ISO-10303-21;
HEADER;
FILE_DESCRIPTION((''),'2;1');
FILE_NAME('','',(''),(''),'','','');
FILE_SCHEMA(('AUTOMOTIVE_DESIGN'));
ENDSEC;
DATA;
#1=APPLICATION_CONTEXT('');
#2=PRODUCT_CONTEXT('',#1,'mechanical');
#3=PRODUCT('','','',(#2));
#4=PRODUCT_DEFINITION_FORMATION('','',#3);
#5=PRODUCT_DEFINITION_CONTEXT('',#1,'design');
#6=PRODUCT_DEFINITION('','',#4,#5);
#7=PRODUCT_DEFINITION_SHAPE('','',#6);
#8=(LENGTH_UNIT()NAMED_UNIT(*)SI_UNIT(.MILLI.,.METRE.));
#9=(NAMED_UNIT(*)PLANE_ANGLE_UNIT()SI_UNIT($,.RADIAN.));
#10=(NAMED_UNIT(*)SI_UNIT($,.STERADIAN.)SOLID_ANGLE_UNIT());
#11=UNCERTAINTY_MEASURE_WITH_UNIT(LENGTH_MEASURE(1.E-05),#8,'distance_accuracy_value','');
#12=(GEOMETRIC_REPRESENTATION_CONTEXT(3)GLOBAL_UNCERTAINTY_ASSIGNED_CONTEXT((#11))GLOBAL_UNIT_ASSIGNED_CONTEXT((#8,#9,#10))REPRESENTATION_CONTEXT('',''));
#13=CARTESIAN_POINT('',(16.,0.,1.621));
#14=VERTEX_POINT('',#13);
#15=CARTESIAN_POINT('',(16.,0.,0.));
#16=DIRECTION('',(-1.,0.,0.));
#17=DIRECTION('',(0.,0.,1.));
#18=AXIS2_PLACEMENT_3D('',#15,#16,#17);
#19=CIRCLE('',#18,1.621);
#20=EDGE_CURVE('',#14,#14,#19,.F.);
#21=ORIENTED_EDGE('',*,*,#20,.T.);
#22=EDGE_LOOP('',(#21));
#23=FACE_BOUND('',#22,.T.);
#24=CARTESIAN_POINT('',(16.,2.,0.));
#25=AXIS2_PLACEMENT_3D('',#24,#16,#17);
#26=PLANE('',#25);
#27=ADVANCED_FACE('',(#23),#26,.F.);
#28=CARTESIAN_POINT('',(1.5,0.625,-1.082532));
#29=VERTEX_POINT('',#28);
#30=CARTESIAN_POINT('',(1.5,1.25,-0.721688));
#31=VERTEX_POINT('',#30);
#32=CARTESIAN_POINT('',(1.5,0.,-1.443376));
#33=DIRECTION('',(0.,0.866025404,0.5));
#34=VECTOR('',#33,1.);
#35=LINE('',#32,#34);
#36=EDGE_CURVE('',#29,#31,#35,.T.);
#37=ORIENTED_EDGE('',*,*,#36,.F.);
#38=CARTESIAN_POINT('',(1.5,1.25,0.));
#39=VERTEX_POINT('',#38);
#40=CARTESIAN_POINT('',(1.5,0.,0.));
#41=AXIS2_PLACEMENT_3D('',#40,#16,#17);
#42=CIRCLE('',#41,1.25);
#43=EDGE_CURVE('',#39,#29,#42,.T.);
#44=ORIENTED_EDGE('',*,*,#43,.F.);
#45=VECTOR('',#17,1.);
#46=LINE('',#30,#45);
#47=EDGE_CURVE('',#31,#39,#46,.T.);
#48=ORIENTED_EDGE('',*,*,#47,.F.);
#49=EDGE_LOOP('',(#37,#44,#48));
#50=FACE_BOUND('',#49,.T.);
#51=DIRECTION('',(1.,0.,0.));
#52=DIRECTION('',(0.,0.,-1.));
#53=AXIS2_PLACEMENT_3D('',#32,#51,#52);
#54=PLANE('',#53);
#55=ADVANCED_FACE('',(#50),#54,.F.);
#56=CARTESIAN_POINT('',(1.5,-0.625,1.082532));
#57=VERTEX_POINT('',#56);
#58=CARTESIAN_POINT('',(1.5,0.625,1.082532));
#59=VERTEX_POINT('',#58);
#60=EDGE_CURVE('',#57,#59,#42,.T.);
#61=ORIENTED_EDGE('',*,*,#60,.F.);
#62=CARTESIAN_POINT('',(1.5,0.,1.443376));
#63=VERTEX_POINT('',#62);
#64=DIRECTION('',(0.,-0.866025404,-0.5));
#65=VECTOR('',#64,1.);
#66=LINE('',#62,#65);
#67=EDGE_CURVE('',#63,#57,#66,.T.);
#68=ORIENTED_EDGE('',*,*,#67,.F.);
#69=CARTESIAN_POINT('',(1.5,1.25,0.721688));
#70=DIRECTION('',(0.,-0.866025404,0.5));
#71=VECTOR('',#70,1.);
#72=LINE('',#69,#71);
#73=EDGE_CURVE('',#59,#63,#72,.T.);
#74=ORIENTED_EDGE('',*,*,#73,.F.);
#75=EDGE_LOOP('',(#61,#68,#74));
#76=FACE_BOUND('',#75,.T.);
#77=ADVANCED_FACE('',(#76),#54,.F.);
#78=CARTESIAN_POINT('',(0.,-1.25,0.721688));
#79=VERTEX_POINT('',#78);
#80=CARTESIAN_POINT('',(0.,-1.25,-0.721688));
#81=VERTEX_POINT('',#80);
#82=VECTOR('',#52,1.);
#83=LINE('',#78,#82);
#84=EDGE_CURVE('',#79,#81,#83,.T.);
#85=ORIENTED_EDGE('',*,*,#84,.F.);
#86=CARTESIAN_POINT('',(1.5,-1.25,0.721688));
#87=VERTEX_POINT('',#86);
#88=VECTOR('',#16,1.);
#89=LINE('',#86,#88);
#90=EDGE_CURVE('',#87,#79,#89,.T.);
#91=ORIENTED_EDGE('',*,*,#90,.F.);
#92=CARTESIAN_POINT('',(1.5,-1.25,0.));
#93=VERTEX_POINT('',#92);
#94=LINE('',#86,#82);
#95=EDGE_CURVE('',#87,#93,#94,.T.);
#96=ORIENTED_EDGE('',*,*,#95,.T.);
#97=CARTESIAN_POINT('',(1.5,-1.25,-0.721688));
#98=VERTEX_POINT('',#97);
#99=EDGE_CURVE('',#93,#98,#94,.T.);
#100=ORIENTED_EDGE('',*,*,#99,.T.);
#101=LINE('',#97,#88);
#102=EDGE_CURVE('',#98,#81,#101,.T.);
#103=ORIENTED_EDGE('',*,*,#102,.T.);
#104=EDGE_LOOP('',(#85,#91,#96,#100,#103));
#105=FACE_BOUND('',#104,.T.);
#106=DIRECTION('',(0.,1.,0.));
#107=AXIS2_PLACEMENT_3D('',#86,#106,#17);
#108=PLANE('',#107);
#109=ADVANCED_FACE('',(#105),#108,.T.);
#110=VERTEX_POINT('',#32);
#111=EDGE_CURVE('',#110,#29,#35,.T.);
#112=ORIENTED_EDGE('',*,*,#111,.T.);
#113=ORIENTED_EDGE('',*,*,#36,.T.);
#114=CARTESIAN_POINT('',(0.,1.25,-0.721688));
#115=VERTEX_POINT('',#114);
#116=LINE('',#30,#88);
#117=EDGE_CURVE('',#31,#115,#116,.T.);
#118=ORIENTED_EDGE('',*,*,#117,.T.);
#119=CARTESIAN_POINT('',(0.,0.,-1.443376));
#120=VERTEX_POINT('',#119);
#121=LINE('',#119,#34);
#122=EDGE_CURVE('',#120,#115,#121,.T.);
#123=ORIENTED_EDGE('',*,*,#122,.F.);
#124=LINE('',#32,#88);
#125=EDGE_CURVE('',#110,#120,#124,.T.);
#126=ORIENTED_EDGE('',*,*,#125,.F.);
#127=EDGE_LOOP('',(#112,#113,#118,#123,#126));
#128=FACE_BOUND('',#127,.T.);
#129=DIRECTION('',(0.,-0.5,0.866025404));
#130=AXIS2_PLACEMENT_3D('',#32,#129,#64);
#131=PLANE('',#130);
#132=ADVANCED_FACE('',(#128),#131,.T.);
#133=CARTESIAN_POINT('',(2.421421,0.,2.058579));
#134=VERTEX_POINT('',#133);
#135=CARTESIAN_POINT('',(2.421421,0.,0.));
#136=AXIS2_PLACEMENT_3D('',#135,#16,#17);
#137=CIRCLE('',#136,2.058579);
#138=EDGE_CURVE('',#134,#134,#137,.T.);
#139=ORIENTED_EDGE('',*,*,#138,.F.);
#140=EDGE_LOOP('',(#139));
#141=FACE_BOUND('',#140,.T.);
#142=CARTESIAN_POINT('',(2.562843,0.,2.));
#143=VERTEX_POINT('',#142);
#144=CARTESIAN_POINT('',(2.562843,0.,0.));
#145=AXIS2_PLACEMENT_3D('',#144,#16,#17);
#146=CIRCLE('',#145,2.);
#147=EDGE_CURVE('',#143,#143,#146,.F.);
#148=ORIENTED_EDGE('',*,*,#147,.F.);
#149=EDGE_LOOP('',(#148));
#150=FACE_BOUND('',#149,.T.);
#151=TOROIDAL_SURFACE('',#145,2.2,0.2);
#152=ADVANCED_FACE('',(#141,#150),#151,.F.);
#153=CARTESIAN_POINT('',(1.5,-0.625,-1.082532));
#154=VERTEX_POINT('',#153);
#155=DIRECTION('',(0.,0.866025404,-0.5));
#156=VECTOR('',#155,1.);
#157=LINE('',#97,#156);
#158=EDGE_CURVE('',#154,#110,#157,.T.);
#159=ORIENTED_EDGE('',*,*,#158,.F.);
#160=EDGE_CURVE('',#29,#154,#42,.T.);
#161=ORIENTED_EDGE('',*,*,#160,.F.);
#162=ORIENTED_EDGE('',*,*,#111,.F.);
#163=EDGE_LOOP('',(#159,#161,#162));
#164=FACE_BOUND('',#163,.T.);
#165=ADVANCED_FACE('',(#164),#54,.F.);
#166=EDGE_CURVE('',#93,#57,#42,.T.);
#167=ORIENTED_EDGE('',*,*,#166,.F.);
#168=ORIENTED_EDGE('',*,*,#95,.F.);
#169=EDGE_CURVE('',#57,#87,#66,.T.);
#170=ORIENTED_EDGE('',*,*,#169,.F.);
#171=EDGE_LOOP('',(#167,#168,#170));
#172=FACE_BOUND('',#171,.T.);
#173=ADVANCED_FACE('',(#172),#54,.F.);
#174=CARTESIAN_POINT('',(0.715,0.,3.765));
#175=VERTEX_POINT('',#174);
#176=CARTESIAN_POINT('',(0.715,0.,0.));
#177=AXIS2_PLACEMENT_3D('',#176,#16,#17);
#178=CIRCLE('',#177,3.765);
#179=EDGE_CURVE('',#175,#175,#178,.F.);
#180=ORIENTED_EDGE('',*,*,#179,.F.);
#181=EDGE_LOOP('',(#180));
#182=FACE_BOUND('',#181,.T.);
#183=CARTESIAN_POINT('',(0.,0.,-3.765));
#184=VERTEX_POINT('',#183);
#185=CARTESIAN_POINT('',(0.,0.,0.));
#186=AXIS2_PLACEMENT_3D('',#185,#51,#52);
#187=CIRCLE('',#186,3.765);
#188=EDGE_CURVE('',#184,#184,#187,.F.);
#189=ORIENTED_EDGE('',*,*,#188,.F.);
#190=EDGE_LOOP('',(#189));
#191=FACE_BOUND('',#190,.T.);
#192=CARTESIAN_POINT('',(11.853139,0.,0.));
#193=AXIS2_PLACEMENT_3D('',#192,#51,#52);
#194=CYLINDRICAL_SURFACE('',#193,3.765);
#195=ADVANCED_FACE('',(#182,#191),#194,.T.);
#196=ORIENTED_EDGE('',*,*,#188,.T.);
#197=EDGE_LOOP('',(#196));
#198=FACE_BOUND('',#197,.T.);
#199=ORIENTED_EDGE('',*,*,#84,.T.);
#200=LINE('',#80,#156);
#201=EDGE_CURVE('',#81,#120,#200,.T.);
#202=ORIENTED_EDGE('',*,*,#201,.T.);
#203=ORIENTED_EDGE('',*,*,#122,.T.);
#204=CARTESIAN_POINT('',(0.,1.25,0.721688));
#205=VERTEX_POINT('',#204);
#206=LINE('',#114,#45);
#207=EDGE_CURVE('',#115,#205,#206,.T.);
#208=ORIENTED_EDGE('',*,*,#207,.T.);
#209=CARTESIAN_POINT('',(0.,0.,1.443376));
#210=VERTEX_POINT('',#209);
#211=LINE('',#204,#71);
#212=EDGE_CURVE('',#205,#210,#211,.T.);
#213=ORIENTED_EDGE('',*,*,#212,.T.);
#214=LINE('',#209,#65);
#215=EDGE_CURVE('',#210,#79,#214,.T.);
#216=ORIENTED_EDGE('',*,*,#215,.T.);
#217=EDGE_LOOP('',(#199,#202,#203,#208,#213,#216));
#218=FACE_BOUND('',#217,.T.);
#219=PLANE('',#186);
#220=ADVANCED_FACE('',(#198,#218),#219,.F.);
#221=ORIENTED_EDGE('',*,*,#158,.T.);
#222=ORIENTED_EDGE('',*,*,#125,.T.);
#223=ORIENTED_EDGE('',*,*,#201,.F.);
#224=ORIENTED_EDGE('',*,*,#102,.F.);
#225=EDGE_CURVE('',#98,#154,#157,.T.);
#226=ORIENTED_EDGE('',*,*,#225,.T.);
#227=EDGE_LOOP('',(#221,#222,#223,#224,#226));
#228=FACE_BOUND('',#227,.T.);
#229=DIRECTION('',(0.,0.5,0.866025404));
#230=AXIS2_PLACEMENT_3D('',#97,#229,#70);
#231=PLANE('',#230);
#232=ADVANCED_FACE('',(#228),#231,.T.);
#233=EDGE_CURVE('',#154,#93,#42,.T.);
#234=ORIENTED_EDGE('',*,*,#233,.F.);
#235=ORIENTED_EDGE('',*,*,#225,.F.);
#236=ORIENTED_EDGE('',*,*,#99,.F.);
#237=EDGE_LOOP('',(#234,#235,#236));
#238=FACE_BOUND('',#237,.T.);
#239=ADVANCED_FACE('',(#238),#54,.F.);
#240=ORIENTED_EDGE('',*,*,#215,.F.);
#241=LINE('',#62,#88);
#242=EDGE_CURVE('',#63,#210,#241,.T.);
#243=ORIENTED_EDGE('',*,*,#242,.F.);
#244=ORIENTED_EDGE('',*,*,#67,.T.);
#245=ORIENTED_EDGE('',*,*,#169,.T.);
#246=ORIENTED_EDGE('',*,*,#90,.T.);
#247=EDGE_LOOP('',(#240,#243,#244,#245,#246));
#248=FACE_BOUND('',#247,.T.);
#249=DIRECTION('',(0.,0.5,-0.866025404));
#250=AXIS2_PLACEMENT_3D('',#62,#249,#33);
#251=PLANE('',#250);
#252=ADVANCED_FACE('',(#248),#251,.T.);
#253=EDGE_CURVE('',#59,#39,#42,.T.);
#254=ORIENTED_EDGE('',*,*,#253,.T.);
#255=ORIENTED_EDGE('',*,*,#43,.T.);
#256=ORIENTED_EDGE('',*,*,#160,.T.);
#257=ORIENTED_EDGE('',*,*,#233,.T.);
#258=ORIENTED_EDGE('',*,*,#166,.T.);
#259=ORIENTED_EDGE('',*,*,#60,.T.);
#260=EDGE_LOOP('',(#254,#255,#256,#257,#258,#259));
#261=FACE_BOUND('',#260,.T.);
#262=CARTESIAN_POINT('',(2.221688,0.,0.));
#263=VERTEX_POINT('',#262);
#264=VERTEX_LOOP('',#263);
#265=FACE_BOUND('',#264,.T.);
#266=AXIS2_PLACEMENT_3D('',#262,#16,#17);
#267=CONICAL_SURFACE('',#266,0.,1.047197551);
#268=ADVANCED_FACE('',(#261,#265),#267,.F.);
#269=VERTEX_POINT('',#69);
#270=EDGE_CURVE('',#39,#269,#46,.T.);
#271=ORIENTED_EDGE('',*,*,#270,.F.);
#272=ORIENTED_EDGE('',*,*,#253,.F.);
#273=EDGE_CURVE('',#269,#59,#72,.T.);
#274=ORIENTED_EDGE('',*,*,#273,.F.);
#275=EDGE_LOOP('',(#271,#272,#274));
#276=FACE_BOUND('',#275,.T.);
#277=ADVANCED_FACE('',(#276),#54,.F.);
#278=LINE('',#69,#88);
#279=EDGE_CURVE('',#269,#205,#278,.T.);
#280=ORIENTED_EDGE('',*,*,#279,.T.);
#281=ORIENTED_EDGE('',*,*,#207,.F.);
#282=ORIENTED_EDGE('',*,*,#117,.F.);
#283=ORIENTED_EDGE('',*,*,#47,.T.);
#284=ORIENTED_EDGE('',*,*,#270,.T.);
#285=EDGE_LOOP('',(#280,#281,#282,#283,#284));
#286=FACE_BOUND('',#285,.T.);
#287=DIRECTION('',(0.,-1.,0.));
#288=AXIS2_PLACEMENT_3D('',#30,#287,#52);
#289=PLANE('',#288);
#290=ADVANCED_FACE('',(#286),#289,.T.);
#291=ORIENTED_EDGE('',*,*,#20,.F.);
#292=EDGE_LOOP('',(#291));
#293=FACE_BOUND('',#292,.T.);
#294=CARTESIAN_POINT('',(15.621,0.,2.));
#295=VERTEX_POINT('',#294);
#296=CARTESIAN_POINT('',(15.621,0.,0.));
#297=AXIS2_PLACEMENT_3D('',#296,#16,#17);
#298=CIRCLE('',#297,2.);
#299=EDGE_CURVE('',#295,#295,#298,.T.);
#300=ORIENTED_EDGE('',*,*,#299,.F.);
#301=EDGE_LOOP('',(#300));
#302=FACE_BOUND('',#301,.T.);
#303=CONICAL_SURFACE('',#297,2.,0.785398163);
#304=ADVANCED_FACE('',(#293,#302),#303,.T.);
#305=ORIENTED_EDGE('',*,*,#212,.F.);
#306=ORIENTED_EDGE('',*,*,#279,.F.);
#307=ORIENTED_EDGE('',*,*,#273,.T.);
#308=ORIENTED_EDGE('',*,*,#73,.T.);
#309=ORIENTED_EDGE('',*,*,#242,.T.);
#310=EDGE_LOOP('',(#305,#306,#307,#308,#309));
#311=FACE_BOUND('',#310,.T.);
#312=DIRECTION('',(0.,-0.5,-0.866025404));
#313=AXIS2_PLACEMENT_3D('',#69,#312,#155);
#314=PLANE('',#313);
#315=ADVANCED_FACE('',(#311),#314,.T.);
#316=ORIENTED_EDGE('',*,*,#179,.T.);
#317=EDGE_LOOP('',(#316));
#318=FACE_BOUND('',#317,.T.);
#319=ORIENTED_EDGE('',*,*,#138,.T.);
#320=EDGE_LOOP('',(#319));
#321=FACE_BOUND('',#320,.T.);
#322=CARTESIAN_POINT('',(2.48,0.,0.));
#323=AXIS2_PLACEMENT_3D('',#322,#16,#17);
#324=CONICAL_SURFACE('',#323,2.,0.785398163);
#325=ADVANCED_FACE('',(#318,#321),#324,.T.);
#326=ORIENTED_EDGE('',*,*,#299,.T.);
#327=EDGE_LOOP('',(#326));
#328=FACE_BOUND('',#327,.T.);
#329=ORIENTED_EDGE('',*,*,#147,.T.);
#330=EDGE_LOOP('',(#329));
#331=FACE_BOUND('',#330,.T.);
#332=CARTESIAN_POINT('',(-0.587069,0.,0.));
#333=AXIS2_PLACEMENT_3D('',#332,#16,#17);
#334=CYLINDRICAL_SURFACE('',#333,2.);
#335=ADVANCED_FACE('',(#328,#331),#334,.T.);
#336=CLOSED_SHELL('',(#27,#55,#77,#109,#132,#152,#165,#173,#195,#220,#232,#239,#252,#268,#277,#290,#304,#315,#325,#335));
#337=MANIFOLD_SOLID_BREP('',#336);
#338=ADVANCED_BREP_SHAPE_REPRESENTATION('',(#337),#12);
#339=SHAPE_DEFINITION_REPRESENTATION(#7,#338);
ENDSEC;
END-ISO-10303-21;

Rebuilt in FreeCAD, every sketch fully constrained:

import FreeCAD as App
import Part
import Sketcher

V = App.Vector
Q = App.Units.Quantity


def edges_at(feature, points):
    """Names of the edges that pass closest to the given points."""
    edges = feature.Shape.Edges
    near = lambda p: min(range(len(edges)), key=lambda i: edges[i].distToShape(Part.Vertex(*p))[0])
    return sorted({f"Edge{near(p) + 1}" for p in points})

doc = App.newDocument("Part")
body = doc.addObject("PartDesign::Body", "Body")

# Sketch on XY plane
sketch1 = body.newObject("Sketcher::SketchObject", "Sketch")
sketch1.AttachmentSupport = (doc.getObject("XY_Plane"), [""])
sketch1.MapMode = "FlatFace"
sketch1.addGeometry(Part.LineSegment(V(0, 4.5, 0), V(0, 0, 0)), False)
sketch1.addGeometry(Part.LineSegment(V(0, 0, 0), V(16, 0, 0)), False)
sketch1.addGeometry(Part.LineSegment(V(16, 0, 0), V(16, 2, 0)), False)
sketch1.addGeometry(Part.LineSegment(V(16, 2, 0), V(2.5, 2, 0)), False)
sketch1.addGeometry(Part.LineSegment(V(2.5, 2, 0), V(0, 4.5, 0)), False)
sketch1.addConstraint(Sketcher.Constraint("Coincident", 0, 2, 1, 1))
sketch1.addConstraint(Sketcher.Constraint("Coincident", 1, 2, 2, 1))
sketch1.addConstraint(Sketcher.Constraint("Coincident", 2, 2, 3, 1))
sketch1.addConstraint(Sketcher.Constraint("Coincident", 3, 2, 4, 1))
sketch1.addConstraint(Sketcher.Constraint("Coincident", 4, 2, 0, 1))
sketch1.addConstraint(Sketcher.Constraint("Vertical", 0))
sketch1.addConstraint(Sketcher.Constraint("Horizontal", 1))
sketch1.addConstraint(Sketcher.Constraint("Vertical", 2))
sketch1.addConstraint(Sketcher.Constraint("Horizontal", 3))
sketch1.addConstraint(Sketcher.Constraint("Coincident", 0, 2, -1, 1))
sketch1.addConstraint(Sketcher.Constraint("DistanceX", 1, 1, 1, 2, 16.0))
sketch1.addConstraint(Sketcher.Constraint("DistanceY", 2, 1, 2, 2, 2.0))
sketch1.addConstraint(Sketcher.Constraint("Angle", 4, Q("135 deg")))
sketch1.addConstraint(Sketcher.Constraint("DistanceX", 3, 2, 3, 1, 13.52))
revolution = body.newObject("PartDesign::Revolution", "Revolution")
revolution.Profile = sketch1
revolution.ReferenceAxis = (sketch1, ["H_Axis"])
revolution.Angle = 360

# Sketch on YZ plane
sketch2 = body.newObject("Sketcher::SketchObject", "Sketch001")
sketch2.AttachmentSupport = (doc.getObject("YZ_Plane"), [""])
sketch2.MapMode = "FlatFace"
sketch2.addGeometry(Part.LineSegment(V(0, -1.4, 0), V(1.2, -0.7, 0)), False)
sketch2.addGeometry(Part.LineSegment(V(1.2, -0.7, 0), V(1.2, 0.7, 0)), False)
sketch2.addGeometry(Part.LineSegment(V(1.2, 0.7, 0), V(0, 1.4, 0)), False)
sketch2.addGeometry(Part.LineSegment(V(0, 1.4, 0), V(-1.2, 0.7, 0)), False)
sketch2.addGeometry(Part.LineSegment(V(-1.2, 0.7, 0), V(-1.2, -0.7, 0)), False)
sketch2.addGeometry(Part.LineSegment(V(-1.2, -0.7, 0), V(0, -1.4, 0)), False)
sketch2.addConstraint(Sketcher.Constraint("Coincident", 0, 2, 1, 1))
sketch2.addConstraint(Sketcher.Constraint("Coincident", 1, 2, 2, 1))
sketch2.addConstraint(Sketcher.Constraint("Coincident", 2, 2, 3, 1))
sketch2.addConstraint(Sketcher.Constraint("Coincident", 3, 2, 4, 1))
sketch2.addConstraint(Sketcher.Constraint("Coincident", 4, 2, 5, 1))
sketch2.addConstraint(Sketcher.Constraint("Coincident", 5, 2, 0, 1))
sketch2.addConstraint(Sketcher.Constraint("Vertical", 1))
sketch2.addConstraint(Sketcher.Constraint("Vertical", 4))
sketch2.addConstraint(Sketcher.Constraint("Symmetric", 0, 2, 3, 2, -1, 1))
sketch2.addConstraint(Sketcher.Constraint("Symmetric", 2, 2, 5, 2, -1, 1))
sketch2.addConstraint(Sketcher.Constraint("PointOnObject", 2, 2, -2))
sketch2.addConstraint(Sketcher.Constraint("Parallel", 2, 5))
sketch2.addConstraint(Sketcher.Constraint("Horizontal", 1, 2, 3, 2))
sketch2.addConstraint(Sketcher.Constraint("Angle", 0, Q("30 deg")))
sketch2.addConstraint(Sketcher.Constraint("DistanceX", 3, 2, 1, 2, 2.5))
sketch2.addConstraint(Sketcher.Constraint("DistanceY", 1, 1, 1, 2, 1.443376))
pocket1 = body.newObject("PartDesign::Pocket", "Pocket")
pocket1.Profile = sketch2
pocket1.Length = 1.5
pocket1.Reversed = True

# Sketch on XY plane
sketch3 = body.newObject("Sketcher::SketchObject", "Sketch002")
sketch3.AttachmentSupport = (doc.getObject("XY_Plane"), [""])
sketch3.MapMode = "FlatFace"
sketch3.addGeometry(Part.LineSegment(V(2.2, 0, 0), V(1.5, 1.2, 0)), False)
sketch3.addGeometry(Part.LineSegment(V(1.5, 1.2, 0), V(1.5, 0, 0)), False)
sketch3.addGeometry(Part.LineSegment(V(1.5, 0, 0), V(2.2, 0, 0)), False)
sketch3.addConstraint(Sketcher.Constraint("Coincident", 0, 2, 1, 1))
sketch3.addConstraint(Sketcher.Constraint("Coincident", 1, 2, 2, 1))
sketch3.addConstraint(Sketcher.Constraint("Coincident", 2, 2, 0, 1))
sketch3.addConstraint(Sketcher.Constraint("Vertical", 1))
sketch3.addConstraint(Sketcher.Constraint("Horizontal", 2))
sketch3.addConstraint(Sketcher.Constraint("PointOnObject", 1, 2, -1))
sketch3.addConstraint(Sketcher.Constraint("Angle", 0, Q("120 deg")))
sketch3.addConstraint(Sketcher.Constraint("DistanceY", 1, 2, 1, 1, 1.25))
sketch3.addConstraint(Sketcher.Constraint("DistanceX", -1, 1, 0, 2, 1.5))
groove = body.newObject("PartDesign::Groove", "Groove")
groove.Profile = sketch3
groove.ReferenceAxis = (sketch3, ["H_Axis"])
groove.Angle = 360
doc.recompute()

fillet = body.newObject("PartDesign::Fillet", "Fillet")
fillet.Base = (groove, edges_at(groove, [(2.48, 0, -2)]))
fillet.Radius = 0.2
doc.recompute()

chamfer = body.newObject("PartDesign::Chamfer", "Chamfer")
chamfer.Base = (fillet, edges_at(fillet, [(16, 0, -2)]))
chamfer.Size = 0.379

# Sketch on XZ plane
sketch4 = body.newObject("Sketcher::SketchObject", "Sketch003")
sketch4.AttachmentSupport = (doc.getObject("XZ_Plane"), [""])
sketch4.MapMode = "FlatFace"
sketch4.addGeometry(Part.LineSegment(V(-2, -9, 0), V(-2, -4, 0)), False)
sketch4.addGeometry(Part.LineSegment(V(-2, -4, 0), V(3, -4, 0)), False)
sketch4.addGeometry(Part.LineSegment(V(3, -4, 0), V(3, -9, 0)), False)
sketch4.addGeometry(Part.LineSegment(V(3, -9, 0), V(-2, -9, 0)), False)
sketch4.addConstraint(Sketcher.Constraint("Coincident", 0, 2, 1, 1))
sketch4.addConstraint(Sketcher.Constraint("Coincident", 1, 2, 2, 1))
sketch4.addConstraint(Sketcher.Constraint("Coincident", 2, 2, 3, 1))
sketch4.addConstraint(Sketcher.Constraint("Coincident", 3, 2, 0, 1))
sketch4.addConstraint(Sketcher.Constraint("Vertical", 0))
sketch4.addConstraint(Sketcher.Constraint("Horizontal", 1))
sketch4.addConstraint(Sketcher.Constraint("Vertical", 2))
sketch4.addConstraint(Sketcher.Constraint("Horizontal", 3))
sketch4.addConstraint(Sketcher.Constraint("Equal", 3, 0))
sketch4.addConstraint(Sketcher.Constraint("DistanceX", 1, 1, 1, 2, 5.0))
sketch4.addConstraint(Sketcher.Constraint("DistanceX", 0, 2, -1, 1, 2.0))
sketch4.addConstraint(Sketcher.Constraint("DistanceY", 0, 2, -1, 1, 3.765))
groove2 = body.newObject("PartDesign::Groove", "Groove001")
groove2.Profile = sketch4
groove2.ReferenceAxis = (sketch4, ["H_Axis"])
groove2.Angle = 360

doc.recompute()
